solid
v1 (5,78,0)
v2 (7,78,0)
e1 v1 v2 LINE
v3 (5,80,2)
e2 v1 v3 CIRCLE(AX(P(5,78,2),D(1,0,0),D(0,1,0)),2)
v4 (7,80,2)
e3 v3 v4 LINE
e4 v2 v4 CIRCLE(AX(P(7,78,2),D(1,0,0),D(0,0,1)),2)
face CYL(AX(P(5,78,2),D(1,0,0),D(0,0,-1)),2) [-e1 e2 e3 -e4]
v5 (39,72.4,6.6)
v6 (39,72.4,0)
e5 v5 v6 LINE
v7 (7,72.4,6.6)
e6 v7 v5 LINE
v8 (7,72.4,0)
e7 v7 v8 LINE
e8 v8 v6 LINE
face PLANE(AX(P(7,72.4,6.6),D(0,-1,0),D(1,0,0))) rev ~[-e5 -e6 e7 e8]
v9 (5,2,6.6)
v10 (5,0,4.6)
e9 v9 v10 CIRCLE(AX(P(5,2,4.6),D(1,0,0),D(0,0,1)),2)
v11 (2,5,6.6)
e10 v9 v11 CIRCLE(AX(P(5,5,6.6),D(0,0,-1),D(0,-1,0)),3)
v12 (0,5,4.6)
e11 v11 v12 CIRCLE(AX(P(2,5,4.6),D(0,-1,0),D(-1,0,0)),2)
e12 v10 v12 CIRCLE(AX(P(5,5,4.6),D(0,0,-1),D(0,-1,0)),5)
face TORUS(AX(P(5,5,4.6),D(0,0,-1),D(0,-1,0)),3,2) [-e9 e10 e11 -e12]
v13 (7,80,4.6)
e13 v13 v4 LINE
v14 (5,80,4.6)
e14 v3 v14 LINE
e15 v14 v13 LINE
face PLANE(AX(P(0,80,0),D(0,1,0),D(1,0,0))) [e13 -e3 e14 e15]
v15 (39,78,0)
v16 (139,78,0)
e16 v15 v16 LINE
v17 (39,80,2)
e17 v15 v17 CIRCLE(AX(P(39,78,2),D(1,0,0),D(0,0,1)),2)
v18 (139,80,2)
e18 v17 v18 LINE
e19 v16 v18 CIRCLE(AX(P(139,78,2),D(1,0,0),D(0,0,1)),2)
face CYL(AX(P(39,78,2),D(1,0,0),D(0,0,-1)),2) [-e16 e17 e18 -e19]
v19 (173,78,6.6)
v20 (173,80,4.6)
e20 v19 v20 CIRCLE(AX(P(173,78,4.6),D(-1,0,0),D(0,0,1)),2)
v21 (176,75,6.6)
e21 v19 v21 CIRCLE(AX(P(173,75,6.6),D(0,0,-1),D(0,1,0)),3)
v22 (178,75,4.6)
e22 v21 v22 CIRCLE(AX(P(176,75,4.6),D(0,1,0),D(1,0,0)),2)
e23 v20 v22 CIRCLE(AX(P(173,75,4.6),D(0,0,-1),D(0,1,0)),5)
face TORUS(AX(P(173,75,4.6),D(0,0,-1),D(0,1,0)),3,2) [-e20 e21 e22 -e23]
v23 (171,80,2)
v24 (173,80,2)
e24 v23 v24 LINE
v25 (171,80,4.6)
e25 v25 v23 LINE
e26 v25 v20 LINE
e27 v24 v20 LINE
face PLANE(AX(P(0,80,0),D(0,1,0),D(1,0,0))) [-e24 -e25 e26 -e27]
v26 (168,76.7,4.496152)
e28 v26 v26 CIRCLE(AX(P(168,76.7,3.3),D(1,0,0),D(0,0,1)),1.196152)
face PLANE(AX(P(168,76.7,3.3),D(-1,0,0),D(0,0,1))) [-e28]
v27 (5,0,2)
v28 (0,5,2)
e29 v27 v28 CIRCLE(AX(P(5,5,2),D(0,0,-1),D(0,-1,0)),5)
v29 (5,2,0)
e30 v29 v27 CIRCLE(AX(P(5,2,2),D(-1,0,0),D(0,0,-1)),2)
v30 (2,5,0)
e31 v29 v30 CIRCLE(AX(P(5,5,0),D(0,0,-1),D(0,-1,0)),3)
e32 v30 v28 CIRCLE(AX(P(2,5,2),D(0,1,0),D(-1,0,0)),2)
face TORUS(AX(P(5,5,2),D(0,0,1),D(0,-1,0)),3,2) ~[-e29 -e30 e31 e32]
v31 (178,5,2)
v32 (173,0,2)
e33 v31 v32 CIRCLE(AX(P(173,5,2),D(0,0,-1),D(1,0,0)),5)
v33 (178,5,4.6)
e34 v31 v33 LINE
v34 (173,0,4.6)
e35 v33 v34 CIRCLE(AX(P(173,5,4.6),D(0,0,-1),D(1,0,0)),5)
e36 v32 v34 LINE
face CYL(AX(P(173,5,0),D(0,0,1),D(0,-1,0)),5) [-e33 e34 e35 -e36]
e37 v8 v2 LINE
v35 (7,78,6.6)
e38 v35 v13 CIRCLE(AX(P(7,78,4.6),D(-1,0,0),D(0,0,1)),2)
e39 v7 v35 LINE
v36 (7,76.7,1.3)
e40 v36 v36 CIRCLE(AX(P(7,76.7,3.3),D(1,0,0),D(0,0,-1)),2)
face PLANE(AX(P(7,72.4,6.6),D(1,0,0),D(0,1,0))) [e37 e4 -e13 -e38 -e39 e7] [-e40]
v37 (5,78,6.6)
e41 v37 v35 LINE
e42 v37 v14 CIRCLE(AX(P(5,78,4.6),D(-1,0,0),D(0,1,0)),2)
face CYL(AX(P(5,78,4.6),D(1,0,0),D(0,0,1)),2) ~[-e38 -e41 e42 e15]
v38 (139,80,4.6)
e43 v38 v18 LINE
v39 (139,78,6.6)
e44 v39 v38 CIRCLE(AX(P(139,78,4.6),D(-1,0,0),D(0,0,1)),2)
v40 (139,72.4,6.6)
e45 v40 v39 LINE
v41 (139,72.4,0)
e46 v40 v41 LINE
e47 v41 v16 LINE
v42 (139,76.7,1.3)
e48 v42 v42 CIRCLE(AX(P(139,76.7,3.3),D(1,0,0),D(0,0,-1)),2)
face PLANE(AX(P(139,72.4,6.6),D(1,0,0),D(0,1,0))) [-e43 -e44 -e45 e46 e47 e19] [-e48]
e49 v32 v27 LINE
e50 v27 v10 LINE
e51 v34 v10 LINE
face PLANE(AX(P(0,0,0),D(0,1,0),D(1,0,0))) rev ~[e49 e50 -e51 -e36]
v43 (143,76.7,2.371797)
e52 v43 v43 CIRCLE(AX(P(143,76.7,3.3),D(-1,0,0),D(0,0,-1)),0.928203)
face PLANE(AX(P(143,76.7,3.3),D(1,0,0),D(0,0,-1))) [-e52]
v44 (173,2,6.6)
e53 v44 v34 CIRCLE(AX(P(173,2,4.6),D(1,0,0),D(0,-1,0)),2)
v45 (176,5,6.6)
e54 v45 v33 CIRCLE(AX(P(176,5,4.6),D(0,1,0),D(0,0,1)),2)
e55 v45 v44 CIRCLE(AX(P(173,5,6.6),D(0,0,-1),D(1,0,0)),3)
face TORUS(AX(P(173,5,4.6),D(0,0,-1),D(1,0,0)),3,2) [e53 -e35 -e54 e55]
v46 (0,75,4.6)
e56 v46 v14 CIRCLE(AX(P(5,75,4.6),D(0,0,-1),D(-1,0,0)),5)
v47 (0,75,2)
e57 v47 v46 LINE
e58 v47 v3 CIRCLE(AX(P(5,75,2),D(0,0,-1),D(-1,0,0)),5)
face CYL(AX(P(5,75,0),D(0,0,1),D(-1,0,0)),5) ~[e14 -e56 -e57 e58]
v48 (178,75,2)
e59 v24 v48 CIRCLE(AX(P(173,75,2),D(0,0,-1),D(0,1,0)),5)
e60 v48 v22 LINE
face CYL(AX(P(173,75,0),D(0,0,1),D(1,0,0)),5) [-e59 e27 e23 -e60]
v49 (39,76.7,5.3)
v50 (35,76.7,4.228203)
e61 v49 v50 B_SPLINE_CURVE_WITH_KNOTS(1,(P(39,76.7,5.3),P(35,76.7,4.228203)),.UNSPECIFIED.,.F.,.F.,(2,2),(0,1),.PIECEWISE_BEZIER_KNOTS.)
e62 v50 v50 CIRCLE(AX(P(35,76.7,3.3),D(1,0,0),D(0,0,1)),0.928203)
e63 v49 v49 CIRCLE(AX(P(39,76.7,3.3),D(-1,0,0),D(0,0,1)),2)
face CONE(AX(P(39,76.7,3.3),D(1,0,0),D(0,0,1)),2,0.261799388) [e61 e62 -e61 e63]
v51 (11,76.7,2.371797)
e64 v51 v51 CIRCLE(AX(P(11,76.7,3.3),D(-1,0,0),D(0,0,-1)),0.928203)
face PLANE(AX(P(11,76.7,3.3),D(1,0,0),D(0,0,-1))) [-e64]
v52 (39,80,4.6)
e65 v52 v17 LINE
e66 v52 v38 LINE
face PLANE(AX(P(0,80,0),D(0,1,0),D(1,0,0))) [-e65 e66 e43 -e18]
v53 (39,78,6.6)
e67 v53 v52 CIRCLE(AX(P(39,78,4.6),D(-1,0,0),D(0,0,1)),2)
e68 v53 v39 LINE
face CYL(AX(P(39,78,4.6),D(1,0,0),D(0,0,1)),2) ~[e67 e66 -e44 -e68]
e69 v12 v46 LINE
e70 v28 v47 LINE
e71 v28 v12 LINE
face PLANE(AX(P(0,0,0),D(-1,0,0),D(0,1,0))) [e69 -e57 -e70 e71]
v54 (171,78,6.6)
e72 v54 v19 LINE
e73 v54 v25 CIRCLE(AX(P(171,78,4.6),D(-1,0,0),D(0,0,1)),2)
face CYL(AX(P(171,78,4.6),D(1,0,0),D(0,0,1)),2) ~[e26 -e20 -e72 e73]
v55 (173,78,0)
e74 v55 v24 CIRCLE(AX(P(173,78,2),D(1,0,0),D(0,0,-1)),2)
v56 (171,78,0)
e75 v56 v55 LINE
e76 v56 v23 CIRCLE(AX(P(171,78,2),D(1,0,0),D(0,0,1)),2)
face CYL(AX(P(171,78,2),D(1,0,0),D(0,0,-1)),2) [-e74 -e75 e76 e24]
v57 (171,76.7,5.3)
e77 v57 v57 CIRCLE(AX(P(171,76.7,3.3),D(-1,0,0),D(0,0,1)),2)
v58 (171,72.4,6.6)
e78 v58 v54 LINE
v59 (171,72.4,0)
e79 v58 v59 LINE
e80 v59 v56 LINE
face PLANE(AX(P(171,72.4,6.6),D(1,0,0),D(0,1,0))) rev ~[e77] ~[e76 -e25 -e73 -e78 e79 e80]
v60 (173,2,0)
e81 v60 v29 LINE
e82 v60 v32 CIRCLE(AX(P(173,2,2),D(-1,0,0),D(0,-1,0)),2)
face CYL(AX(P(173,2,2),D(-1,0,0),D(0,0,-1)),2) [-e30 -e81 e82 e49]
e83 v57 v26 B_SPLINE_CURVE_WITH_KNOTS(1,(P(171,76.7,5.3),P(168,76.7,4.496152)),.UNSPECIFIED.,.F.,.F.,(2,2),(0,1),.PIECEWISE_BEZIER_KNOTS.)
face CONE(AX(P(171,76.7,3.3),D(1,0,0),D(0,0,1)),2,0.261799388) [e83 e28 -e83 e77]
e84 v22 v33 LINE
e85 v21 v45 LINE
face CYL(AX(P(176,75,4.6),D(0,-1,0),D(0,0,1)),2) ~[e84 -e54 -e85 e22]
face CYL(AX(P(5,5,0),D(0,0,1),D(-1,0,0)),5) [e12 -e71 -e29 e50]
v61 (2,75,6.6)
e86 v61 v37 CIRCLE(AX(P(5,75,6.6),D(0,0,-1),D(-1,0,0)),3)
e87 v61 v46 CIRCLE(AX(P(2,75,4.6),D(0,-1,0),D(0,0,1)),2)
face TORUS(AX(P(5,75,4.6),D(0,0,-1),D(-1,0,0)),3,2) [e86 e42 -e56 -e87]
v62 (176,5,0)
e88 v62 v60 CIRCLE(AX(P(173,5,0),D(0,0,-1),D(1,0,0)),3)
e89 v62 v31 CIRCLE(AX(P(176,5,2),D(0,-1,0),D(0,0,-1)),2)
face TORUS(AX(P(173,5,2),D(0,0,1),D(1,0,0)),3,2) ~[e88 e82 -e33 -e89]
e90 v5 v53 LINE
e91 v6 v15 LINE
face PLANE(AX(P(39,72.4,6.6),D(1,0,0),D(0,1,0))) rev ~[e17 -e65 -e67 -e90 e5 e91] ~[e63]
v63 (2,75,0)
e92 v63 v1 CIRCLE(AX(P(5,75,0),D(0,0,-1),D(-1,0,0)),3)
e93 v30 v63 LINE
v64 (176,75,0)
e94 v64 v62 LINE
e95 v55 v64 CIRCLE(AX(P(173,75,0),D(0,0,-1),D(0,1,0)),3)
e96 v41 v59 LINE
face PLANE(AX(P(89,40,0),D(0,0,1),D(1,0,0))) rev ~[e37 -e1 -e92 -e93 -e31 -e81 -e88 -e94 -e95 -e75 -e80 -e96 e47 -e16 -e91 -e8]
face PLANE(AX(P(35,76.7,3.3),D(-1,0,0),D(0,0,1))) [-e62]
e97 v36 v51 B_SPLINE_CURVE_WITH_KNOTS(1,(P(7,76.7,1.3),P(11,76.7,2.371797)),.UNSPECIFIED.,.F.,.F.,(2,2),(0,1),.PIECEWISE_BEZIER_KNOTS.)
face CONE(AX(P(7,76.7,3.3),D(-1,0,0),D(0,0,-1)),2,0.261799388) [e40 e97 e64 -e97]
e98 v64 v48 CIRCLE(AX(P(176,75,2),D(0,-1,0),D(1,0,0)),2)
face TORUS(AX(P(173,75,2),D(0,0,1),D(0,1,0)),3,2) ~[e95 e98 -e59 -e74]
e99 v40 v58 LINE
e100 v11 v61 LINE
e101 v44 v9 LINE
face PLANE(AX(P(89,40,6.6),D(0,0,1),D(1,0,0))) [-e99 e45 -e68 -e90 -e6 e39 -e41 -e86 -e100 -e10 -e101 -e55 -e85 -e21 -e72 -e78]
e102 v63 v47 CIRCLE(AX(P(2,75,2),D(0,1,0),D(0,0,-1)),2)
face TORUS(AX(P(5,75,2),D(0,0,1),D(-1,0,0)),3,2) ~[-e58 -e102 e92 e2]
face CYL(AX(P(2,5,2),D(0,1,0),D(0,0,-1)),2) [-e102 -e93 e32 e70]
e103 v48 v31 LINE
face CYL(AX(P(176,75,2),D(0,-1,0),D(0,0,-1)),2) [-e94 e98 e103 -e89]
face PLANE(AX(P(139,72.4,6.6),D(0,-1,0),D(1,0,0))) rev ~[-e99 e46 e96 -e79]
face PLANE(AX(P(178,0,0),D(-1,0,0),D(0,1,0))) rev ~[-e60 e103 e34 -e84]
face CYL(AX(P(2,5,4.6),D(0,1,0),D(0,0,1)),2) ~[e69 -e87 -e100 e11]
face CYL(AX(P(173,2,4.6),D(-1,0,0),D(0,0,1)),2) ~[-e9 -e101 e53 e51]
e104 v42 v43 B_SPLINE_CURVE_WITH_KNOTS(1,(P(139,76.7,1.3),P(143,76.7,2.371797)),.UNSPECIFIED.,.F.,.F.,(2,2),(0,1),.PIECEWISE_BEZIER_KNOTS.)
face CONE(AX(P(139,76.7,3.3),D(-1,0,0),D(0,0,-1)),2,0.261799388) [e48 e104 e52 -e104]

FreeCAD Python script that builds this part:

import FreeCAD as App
import Part
import Sketcher

V = App.Vector


def edges_at(feature, points):
    """Names of the edges that pass closest to the given points."""
    edges = feature.Shape.Edges
    near = lambda p: min(range(len(edges)), key=lambda i: edges[i].distToShape(Part.Vertex(*p))[0])
    return sorted({f"Edge{near(p) + 1}" for p in points})

doc = App.newDocument("Part")
body = doc.addObject("PartDesign::Body", "Body")

# Sketch on XY plane
sketch1 = doc.addObject("Sketcher::SketchObject", "Sketch")
body.addObject(sketch1)
sketch1.AttachmentSupport = (doc.XY_Plane, [""])
sketch1.MapMode = "FlatFace"
sketch1.addGeometry([
    Part.LineSegment(V(0, 80, 0), V(0, 0, 0)),
    Part.LineSegment(V(0, 0, 0), V(178, 0, 0)),
    Part.LineSegment(V(178, 0, 0), V(178, 80, 0)),
    Part.LineSegment(V(178, 80, 0), V(0, 80, 0)),
], False)
sketch1.addConstraint([
    Sketcher.Constraint("Coincident", 0, 2, 1, 1),
    Sketcher.Constraint("Coincident", 1, 2, 2, 1),
    Sketcher.Constraint("Coincident", 2, 2, 3, 1),
    Sketcher.Constraint("Coincident", 3, 2, 0, 1),
    Sketcher.Constraint("Vertical", 0),
    Sketcher.Constraint("Horizontal", 1),
    Sketcher.Constraint("Vertical", 2),
    Sketcher.Constraint("Horizontal", 3),
    Sketcher.Constraint("Coincident", 0, 2, -1, 1),
    Sketcher.Constraint("DistanceX", 1, 1, 1, 2, 178.0),
    Sketcher.Constraint("DistanceY", 0, 2, 0, 1, 80.0),
])
pad1 = doc.addObject("PartDesign::Pad", "Pad")
body.addObject(pad1)
pad1.Profile = sketch1
pad1.Length = 6.6
doc.recompute()

fillet = doc.addObject("PartDesign::Fillet", "Fillet")
body.addObject(fillet)
fillet.Base = (pad1, edges_at(pad1, [
    (0, 80, 3.3),
    (178, 80, 3.3),
    (178, 0, 3.3),
    (0, 0, 3.3),
]))
fillet.Radius = 5

# Sketch on XY plane
sketch2 = doc.addObject("Sketcher::SketchObject", "Sketch001")
body.addObject(sketch2)
sketch2.AttachmentSupport = (doc.XY_Plane, [""])
sketch2.MapMode = "FlatFace"
sketch2.AttachmentOffset = App.Placement(V(0, 0, 6.6), App.Rotation())
sketch2.addGeometry([
    Part.LineSegment(V(7, 80, 0), V(7, 72, 0)),  # 0
    Part.LineSegment(V(7, 72, 0), V(39, 72, 0)),  # 1
    Part.LineSegment(V(39, 72, 0), V(39, 80, 0)),  # 2
    Part.LineSegment(V(39, 80, 0), V(7, 80, 0)),  # 3
    Part.LineSegment(V(139, 80, 0), V(139, 72, 0)),  # 4
    Part.LineSegment(V(139, 72, 0), V(171, 72, 0)),  # 5
    Part.LineSegment(V(171, 72, 0), V(171, 80, 0)),  # 6
    Part.LineSegment(V(171, 80, 0), V(139, 80, 0)),  # 7
], False)
sketch2.addConstraint([
    Sketcher.Constraint("Coincident", 0, 2, 1, 1),
    Sketcher.Constraint("Coincident", 1, 2, 2, 1),
    Sketcher.Constraint("Coincident", 2, 2, 3, 1),
    Sketcher.Constraint("Coincident", 3, 2, 0, 1),
    Sketcher.Constraint("Coincident", 4, 2, 5, 1),
    Sketcher.Constraint("Coincident", 5, 2, 6, 1),
    Sketcher.Constraint("Coincident", 6, 2, 7, 1),
    Sketcher.Constraint("Coincident", 7, 2, 4, 1),
    Sketcher.Constraint("Vertical", 0),
    Sketcher.Constraint("Horizontal", 1),
    Sketcher.Constraint("Vertical", 2),
    Sketcher.Constraint("Horizontal", 3),
    Sketcher.Constraint("Vertical", 4),
    Sketcher.Constraint("Horizontal", 5),
    Sketcher.Constraint("Vertical", 6),
    Sketcher.Constraint("Horizontal", 7),
    Sketcher.Constraint("Horizontal", 1, 2, 4, 2),
    Sketcher.Constraint("Horizontal", 3, 2, 6, 2),
    Sketcher.Constraint("Equal", 3, 5),
    Sketcher.Constraint("DistanceX", 1, 1, 1, 2, 32.0),
    Sketcher.Constraint("DistanceY", 0, 2, 0, 1, 7.6),
    Sketcher.Constraint("DistanceX", -1, 1, 0, 2, 7.0),
    Sketcher.Constraint("DistanceY", -1, 1, 2, 2, 80.0),
    Sketcher.Constraint("DistanceX", -1, 1, 4, 2, 139.0),
])
pocket1 = doc.addObject("PartDesign::Pocket", "Pocket")
body.addObject(pocket1)
pocket1.Profile = sketch2
pocket1.Length = 6.6

# Sketch on YZ plane
sketch3 = doc.addObject("Sketcher::SketchObject", "Sketch002")
body.addObject(sketch3)
sketch3.AttachmentSupport = (doc.YZ_Plane, [""])
sketch3.MapMode = "FlatFace"
sketch3.AttachmentOffset = App.Placement(V(0, 0, 139), App.Rotation())
sketch3.addGeometry(Part.Circle(V(76.7, 3.3, 0), V(0, 0, 1), 2), False)
sketch3.addConstraint([
    Sketcher.Constraint("Diameter", 0, 4.0),
    Sketcher.Constraint("DistanceX", -1, 1, 0, 3, 76.7),
    Sketcher.Constraint("DistanceY", -1, 1, 0, 3, 3.3),
])
pad2 = doc.addObject("PartDesign::Pad", "Pad001")
body.addObject(pad2)
pad2.Profile = sketch3
pad2.Length = 4
pad2.TaperAngle = -15

# Sketch on YZ plane
sketch4 = doc.addObject("Sketcher::SketchObject", "Sketch003")
body.addObject(sketch4)
sketch4.AttachmentSupport = (doc.YZ_Plane, [""])
sketch4.MapMode = "FlatFace"
sketch4.AttachmentOffset = App.Placement(V(0, 0, 7), App.Rotation())
sketch4.addGeometry(Part.Circle(V(76.7, 3.3, 0), V(0, 0, 1), 2), False)
sketch4.addConstraint([
    Sketcher.Constraint("Diameter", 0, 4.0),
    Sketcher.Constraint("DistanceX", -1, 1, 0, 3, 76.7),
    Sketcher.Constraint("DistanceY", -1, 1, 0, 3, 3.3),
])
pad3 = doc.addObject("PartDesign::Pad", "Pad002")
body.addObject(pad3)
pad3.Profile = sketch4
pad3.Length = 4
pad3.TaperAngle = -15

# Sketch on YZ plane
sketch5 = doc.addObject("Sketcher::SketchObject", "Sketch004")
body.addObject(sketch5)
sketch5.AttachmentSupport = (doc.YZ_Plane, [""])
sketch5.MapMode = "FlatFace"
sketch5.AttachmentOffset = App.Placement(V(0, 0, 39), App.Rotation())
sketch5.addGeometry(Part.Circle(V(76.7, 3.3, 0), V(0, 0, 1), 2), False)
sketch5.addConstraint([
    Sketcher.Constraint("Diameter", 0, 4.0),
    Sketcher.Constraint("DistanceX", -1, 1, 0, 3, 76.7),
    Sketcher.Constraint("DistanceY", -1, 1, 0, 3, 3.3),
])
pad4 = doc.addObject("PartDesign::Pad", "Pad003")
body.addObject(pad4)
pad4.Profile = sketch5
pad4.Length = 4
pad4.Reversed = True
pad4.TaperAngle = -15

# Sketch on YZ plane
sketch6 = doc.addObject("Sketcher::SketchObject", "Sketch005")
body.addObject(sketch6)
sketch6.AttachmentSupport = (doc.YZ_Plane, [""])
sketch6.MapMode = "FlatFace"
sketch6.AttachmentOffset = App.Placement(V(0, 0, 171), App.Rotation())
sketch6.addGeometry(Part.Circle(V(76.7, 3.3, 0), V(0, 0, 1), 2), False)
sketch6.addConstraint([
    Sketcher.Constraint("Diameter", 0, 4.0),
    Sketcher.Constraint("DistanceX", -1, 1, 0, 3, 76.7),
    Sketcher.Constraint("DistanceY", -1, 1, 0, 3, 3.3),
])
pad5 = doc.addObject("PartDesign::Pad", "Pad004")
body.addObject(pad5)
pad5.Profile = sketch6
pad5.Length = 3
pad5.Reversed = True
pad5.TaperAngle = -15
doc.recompute()

fillet2 = doc.addObject("PartDesign::Fillet", "Fillet001")
body.addObject(fillet2)
fillet2.Base = (pad5, edges_at(pad5, [
    (172, 80, 0),
    (172, 80, 6.6),
    (0, 40, 0),
    (178, 40, 0),
    (89, 0, 0),
    (1.464, 1.464, 0),
    (176.536, 1.464, 0),
    (1.464, 78.536, 0),
    (176.536, 78.536, 0),
    (178, 40, 6.6),
    (0, 40, 6.6),
    (89, 0, 6.6),
    (1.464, 1.464, 6.6),
    (176.536, 1.464, 6.6),
    (1.464, 78.536, 6.6),
    (176.536, 78.536, 6.6),
    (89, 80, 0),
    (6, 80, 0),
    (89, 80, 6.6),
    (6, 80, 6.6),
]))
fillet2.Radius = 2

doc.recompute()
